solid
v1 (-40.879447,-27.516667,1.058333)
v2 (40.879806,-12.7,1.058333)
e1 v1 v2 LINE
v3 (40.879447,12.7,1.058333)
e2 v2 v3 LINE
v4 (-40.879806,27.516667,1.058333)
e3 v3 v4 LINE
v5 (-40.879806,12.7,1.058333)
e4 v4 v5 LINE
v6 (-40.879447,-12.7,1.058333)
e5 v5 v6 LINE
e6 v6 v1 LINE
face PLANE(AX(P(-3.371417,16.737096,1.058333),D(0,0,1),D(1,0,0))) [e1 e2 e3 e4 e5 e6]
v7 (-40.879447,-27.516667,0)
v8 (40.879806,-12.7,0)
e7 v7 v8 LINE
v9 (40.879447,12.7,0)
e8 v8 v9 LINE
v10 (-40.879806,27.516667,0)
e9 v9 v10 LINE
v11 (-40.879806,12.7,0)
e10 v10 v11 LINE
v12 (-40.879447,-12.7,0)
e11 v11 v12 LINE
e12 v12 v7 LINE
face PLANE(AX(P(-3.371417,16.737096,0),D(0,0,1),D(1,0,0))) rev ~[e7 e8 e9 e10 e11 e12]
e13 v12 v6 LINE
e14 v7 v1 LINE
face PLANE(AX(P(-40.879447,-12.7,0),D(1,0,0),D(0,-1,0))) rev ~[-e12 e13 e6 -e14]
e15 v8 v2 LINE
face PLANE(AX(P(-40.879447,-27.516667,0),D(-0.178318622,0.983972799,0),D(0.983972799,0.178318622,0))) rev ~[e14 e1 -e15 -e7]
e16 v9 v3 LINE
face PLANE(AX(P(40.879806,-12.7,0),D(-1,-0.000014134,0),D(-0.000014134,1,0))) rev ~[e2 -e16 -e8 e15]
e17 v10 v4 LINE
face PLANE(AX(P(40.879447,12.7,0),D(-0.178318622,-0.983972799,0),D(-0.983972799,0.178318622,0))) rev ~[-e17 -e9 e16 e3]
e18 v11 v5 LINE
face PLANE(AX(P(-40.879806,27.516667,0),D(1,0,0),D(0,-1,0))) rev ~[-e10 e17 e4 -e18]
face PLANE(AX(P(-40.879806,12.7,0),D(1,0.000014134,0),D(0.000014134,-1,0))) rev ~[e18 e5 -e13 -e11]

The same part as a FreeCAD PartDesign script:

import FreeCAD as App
import Part
import Sketcher
Q = App.Units.Quantity


def add_polygon(sketch, points):
    """Adds a closed chain of lines whose ends are joined by coincident constraints."""
    first, n = sketch.GeometryCount, len(points)
    for a, b in zip(points, points[1:] + points[:1]):
        sketch.addGeometry(Part.LineSegment(App.Vector(*a, 0), App.Vector(*b, 0)), False)
    for i in range(n):
        sketch.addConstraint(Sketcher.Constraint("Coincident", first + i, 2, first + (i + 1) % n, 1))

doc = App.newDocument("Part")
body = doc.addObject("PartDesign::Body", "Body")

# Sketch on XY plane
sketch1 = doc.addObject("Sketcher::SketchObject", "Sketch")
body.addObject(sketch1)
sketch1.AttachmentSupport = (doc.XY_Plane, [""])
sketch1.MapMode = "FlatFace"
add_polygon(sketch1, [(41, 13), (-41, 28), (-41, 13), (-41, -13), (-41, -28), (41, -13)])  # lines 0-5
sketch1.addConstraint([
    Sketcher.Constraint("Vertical", 1),
    Sketcher.Constraint("Vertical", 3),
    Sketcher.Constraint("Symmetric", 1, 2, 4, 2, -1, 1),
    Sketcher.Constraint("Symmetric", 2, 2, 5, 2, -1, 1),
    Sketcher.Constraint("Horizontal", 2, 2, 4, 2),
    Sketcher.Constraint("Equal", 1, 3),
    Sketcher.Constraint("Distance", 2, Q("1 in")),
    Sketcher.Constraint("Distance", 0, 83.090969),
    Sketcher.Constraint("DistanceY", 1, 2, 1, 1, 14.816667),
    Sketcher.Constraint("DistanceX", 1, 2, 2, 2, 0.000359),
])
pad1 = doc.addObject("PartDesign::Pad", "Pad")
body.addObject(pad1)
pad1.Profile = sketch1
pad1.Length = 1.058333

doc.recompute()
